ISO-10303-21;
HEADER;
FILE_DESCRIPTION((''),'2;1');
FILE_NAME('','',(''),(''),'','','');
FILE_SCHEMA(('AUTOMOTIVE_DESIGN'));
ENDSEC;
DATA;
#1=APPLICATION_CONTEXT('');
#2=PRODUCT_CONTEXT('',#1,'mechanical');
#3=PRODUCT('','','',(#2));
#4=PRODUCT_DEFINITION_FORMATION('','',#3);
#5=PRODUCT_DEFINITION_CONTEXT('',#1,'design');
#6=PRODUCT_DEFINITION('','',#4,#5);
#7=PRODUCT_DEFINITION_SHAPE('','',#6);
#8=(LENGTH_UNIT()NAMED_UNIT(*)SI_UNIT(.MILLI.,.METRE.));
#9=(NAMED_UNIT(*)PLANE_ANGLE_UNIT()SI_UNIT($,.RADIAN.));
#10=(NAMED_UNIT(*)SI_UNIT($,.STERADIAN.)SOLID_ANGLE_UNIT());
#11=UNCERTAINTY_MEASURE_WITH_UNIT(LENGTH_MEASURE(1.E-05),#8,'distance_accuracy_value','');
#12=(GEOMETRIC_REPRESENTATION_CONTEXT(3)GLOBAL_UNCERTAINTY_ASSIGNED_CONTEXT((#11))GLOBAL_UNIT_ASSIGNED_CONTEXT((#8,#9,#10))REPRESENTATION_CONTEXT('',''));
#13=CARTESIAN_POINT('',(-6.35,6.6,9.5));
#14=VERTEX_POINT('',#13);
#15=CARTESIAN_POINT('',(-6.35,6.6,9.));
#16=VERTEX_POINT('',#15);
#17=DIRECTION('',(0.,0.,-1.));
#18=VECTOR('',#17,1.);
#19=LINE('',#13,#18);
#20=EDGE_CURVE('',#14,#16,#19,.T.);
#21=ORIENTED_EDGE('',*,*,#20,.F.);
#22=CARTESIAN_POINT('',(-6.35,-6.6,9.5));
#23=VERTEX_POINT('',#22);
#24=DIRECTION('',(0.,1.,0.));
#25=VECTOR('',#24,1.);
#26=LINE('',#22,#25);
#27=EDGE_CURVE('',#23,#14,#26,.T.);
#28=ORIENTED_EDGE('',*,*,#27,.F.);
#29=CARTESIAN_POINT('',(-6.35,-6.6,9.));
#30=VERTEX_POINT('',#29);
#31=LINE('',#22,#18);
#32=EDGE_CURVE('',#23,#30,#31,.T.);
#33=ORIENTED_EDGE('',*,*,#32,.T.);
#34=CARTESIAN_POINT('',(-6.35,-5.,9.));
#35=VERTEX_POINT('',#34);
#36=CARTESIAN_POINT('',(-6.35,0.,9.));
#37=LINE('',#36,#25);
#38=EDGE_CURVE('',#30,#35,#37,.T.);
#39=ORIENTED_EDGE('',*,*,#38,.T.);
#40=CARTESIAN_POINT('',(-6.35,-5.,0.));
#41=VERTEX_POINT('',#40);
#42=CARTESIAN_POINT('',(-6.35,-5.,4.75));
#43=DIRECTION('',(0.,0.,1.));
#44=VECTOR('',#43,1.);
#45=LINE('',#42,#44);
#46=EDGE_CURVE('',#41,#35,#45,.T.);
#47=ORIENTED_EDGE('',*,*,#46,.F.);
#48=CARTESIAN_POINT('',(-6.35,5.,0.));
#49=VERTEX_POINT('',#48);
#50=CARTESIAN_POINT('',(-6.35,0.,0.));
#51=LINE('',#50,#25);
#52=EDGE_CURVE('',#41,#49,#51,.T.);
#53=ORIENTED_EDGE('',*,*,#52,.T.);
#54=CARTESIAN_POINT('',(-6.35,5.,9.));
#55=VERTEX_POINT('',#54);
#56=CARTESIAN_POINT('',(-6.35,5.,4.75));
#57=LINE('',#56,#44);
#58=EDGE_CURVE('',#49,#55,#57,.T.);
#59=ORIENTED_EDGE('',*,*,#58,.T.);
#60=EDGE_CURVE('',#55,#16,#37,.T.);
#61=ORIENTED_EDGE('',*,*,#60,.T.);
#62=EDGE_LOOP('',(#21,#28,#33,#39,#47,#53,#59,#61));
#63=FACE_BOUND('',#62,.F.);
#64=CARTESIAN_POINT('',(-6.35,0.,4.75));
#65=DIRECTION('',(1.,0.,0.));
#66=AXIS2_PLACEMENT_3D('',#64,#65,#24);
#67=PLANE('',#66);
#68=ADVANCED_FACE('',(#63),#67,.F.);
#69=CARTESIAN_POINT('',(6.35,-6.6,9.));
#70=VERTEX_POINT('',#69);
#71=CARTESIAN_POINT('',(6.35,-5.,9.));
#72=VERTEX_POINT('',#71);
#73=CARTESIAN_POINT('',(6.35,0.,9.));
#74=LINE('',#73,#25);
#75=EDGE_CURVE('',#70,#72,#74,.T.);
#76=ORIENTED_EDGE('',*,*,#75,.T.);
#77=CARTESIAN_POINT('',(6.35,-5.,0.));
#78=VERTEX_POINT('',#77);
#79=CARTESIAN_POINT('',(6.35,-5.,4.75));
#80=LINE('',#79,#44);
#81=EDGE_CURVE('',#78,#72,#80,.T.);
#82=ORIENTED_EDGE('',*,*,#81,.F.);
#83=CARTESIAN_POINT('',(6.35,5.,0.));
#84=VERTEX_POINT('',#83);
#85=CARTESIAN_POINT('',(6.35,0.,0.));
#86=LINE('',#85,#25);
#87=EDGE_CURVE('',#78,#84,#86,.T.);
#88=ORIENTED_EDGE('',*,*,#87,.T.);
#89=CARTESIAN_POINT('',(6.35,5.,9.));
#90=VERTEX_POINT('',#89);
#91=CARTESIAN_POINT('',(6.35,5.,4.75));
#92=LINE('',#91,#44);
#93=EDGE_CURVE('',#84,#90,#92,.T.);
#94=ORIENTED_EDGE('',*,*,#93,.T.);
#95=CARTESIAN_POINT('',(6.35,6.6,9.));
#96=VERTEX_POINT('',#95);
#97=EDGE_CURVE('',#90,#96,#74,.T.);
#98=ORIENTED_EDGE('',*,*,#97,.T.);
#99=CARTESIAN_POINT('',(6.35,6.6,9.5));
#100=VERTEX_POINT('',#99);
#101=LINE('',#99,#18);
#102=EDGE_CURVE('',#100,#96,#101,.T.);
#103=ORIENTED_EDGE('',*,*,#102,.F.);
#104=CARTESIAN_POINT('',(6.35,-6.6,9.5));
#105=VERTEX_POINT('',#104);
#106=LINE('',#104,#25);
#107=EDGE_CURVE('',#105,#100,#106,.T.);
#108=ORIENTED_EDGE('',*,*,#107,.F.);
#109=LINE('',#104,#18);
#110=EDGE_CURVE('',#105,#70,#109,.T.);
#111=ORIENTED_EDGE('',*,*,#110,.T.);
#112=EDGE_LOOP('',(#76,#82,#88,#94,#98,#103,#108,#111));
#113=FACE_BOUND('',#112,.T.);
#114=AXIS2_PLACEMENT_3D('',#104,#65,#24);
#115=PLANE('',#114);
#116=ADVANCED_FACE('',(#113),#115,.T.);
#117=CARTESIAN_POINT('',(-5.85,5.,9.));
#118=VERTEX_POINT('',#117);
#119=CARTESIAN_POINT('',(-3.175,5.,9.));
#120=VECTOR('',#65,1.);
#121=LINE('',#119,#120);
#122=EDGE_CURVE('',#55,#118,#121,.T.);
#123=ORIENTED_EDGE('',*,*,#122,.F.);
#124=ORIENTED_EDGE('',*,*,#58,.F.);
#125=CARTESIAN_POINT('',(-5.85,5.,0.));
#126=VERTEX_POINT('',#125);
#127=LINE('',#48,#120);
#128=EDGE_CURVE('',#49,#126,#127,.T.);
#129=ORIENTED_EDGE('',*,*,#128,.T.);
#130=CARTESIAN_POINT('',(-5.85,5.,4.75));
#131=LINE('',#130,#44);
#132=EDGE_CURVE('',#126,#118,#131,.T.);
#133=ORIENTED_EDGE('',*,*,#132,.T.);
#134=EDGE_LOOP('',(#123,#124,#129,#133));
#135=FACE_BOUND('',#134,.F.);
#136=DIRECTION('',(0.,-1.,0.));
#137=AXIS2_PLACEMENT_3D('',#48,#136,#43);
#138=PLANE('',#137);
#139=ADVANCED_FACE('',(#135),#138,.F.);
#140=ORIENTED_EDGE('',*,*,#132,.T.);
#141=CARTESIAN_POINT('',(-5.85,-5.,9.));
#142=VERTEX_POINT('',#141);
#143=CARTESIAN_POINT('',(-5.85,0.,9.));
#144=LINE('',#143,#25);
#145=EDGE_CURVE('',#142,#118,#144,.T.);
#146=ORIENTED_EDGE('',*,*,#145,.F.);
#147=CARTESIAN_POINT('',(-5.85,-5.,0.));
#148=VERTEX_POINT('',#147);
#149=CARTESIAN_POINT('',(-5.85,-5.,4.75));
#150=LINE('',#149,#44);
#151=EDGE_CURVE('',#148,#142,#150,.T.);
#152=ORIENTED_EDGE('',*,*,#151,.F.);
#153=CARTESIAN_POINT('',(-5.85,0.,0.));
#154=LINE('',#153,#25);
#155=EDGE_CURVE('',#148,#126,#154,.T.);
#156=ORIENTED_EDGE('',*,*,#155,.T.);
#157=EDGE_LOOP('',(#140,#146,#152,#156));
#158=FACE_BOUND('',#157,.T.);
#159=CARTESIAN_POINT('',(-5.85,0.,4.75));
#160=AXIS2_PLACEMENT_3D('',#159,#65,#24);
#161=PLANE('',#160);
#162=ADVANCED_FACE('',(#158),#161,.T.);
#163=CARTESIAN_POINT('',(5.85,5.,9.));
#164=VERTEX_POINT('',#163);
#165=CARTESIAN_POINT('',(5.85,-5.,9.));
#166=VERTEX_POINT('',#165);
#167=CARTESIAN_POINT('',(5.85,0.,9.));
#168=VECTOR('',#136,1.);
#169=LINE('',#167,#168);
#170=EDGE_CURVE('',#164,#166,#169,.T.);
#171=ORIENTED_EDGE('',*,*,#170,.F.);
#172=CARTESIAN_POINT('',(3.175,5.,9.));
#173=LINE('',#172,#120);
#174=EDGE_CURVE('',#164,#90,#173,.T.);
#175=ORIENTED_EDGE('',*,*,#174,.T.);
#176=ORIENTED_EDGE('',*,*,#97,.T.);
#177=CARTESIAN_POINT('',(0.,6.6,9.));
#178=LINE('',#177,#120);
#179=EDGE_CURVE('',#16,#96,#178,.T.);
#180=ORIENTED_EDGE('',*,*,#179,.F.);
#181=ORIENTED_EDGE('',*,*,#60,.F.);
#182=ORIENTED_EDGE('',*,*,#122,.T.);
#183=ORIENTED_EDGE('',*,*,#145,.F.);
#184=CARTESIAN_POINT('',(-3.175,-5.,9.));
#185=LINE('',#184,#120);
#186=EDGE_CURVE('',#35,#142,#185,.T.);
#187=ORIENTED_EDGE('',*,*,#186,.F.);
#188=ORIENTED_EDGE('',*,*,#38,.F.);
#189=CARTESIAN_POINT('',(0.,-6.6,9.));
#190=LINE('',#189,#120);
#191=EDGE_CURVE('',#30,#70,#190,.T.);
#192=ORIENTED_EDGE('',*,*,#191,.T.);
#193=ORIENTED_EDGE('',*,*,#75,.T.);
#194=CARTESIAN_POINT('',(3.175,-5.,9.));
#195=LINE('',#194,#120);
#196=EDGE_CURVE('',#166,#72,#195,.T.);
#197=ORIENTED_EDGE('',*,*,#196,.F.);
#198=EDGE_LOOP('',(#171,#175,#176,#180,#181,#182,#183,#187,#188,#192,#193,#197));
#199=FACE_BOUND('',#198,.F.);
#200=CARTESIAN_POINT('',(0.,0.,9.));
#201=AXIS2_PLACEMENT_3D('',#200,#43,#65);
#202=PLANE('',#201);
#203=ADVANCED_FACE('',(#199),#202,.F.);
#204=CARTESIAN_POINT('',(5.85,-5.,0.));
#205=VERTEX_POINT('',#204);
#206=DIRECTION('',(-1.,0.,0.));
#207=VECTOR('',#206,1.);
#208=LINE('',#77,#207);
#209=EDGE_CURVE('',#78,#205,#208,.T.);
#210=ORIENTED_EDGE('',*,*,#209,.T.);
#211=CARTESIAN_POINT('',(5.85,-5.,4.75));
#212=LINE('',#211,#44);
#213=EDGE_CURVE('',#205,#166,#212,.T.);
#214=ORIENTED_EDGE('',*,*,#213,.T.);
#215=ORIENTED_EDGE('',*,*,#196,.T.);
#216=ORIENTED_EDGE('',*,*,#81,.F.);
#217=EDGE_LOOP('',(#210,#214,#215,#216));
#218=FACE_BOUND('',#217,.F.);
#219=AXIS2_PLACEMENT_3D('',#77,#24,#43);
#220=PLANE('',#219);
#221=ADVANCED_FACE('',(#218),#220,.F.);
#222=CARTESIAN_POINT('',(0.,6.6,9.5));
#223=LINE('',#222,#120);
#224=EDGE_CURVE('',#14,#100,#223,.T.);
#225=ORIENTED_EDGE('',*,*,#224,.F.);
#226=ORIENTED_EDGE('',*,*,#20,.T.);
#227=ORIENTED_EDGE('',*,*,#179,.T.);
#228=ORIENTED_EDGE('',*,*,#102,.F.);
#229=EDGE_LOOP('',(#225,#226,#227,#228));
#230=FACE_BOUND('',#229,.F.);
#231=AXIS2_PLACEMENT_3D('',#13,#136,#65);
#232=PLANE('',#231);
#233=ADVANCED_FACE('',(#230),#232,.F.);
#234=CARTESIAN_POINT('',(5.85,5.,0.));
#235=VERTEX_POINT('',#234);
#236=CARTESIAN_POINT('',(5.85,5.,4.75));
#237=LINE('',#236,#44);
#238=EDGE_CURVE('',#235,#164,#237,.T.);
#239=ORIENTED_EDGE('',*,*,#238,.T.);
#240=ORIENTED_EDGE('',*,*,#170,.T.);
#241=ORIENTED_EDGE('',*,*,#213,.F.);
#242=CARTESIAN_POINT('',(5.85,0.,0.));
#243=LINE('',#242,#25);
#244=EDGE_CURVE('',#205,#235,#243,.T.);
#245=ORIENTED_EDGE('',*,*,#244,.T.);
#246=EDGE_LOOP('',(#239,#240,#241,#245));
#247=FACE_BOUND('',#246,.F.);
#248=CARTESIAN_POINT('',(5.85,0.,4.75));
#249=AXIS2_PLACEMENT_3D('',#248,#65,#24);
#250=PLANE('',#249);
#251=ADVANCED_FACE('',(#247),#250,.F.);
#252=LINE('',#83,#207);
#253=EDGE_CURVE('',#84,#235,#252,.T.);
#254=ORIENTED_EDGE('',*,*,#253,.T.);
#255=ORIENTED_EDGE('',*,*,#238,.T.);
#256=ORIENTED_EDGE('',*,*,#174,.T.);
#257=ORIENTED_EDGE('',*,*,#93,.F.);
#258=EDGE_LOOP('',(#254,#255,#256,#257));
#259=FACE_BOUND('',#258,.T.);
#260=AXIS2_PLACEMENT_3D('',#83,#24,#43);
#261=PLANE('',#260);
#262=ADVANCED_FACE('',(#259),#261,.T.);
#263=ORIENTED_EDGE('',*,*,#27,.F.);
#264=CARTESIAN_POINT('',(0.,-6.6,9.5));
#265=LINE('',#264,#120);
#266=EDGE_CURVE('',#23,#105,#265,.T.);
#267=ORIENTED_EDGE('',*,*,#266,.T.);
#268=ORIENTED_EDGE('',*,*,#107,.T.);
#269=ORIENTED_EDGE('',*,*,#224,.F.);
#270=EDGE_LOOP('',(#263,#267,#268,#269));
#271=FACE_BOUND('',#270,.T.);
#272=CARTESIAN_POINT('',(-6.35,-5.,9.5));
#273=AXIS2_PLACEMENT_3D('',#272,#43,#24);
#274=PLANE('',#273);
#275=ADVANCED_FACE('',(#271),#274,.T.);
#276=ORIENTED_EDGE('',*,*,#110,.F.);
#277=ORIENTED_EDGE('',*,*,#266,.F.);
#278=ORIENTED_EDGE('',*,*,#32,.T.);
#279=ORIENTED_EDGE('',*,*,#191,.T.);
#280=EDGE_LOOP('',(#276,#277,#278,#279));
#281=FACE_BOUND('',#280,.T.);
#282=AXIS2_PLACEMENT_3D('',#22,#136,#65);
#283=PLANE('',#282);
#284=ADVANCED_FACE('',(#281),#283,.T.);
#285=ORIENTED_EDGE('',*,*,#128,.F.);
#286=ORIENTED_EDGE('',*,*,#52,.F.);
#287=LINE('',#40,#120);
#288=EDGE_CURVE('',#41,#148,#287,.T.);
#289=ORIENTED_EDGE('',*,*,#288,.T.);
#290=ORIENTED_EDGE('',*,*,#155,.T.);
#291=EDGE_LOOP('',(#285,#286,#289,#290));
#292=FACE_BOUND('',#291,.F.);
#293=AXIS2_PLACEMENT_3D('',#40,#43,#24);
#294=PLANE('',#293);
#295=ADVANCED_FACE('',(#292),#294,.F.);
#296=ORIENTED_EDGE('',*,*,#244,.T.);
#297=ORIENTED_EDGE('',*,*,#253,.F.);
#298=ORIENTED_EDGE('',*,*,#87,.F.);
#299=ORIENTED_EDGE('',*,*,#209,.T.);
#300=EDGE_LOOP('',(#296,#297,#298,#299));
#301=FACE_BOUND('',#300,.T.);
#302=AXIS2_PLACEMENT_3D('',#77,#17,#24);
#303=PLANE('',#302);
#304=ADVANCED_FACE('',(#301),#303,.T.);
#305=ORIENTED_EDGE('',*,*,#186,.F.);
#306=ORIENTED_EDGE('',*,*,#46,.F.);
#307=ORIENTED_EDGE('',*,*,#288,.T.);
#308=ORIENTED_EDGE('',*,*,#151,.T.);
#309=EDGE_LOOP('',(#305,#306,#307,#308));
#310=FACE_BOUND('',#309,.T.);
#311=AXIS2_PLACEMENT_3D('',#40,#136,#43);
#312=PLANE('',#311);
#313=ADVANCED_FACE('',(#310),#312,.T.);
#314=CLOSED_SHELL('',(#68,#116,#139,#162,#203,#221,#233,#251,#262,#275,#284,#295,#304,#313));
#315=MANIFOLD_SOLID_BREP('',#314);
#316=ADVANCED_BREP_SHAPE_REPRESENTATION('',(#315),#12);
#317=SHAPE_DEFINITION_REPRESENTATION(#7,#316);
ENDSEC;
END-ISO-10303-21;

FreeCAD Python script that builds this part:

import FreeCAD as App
import Part
import Sketcher
from FreeCAD import Vector
Q = App.Units.Quantity


def add_polygon(sketch, points):
    """Adds a closed chain of lines whose ends are joined by coincident constraints."""
    first, n = sketch.GeometryCount, len(points)
    for a, b in zip(points, points[1:] + points[:1]):
        sketch.addGeometry(Part.LineSegment(App.Vector(*a, 0), App.Vector(*b, 0)), False)
    for i in range(n):
        sketch.addConstraint(Sketcher.Constraint("Coincident", first + i, 2, first + (i + 1) % n, 1))

doc = App.newDocument("Part")
params = doc.addObject("Spreadsheet::Sheet", "Params")
for row, (alias, value) in enumerate([
    ("sketch1_width", "10 mm"),
    ("sketch1_height", "9.5 mm"),
    ("pad1_length", "0.5 mm"),
    ("sketch2_width", "12.7 mm"),
    ("sketch2_height", "13.2 mm"),
    ("pad2_length", "0.5 mm"),
    ("sketch3_width", "10 mm"),
    ("sketch3_height", "9.5 mm"),
    ("pad3_length", "0.5 mm"),
], start=1):
    params.set(f"A{row}", alias)
    params.set(f"B{row}", "=" + value)
    params.setAlias(f"B{row}", alias)

body = doc.addObject("PartDesign::Body", "Body")

# Sketch on YZ plane
sketch1 = body.newObject("Sketcher::SketchObject", "Sketch")
sketch1.AttachmentSupport = (doc.getObject("YZ_Plane"), [""])
sketch1.MapMode = "FlatFace"
sketch1.AttachmentOffset = App.Placement(Vector(0, 0, 6.35), App.Rotation())
add_polygon(sketch1, [(-5, 10), (-5, 0), (5, 0), (5, 10)])  # lines 0-3
sketch1.addConstraint(Sketcher.Constraint("Vertical", 0))
sketch1.addConstraint(Sketcher.Constraint("Horizontal", 1))
sketch1.addConstraint(Sketcher.Constraint("Vertical", 2))
sketch1.addConstraint(Sketcher.Constraint("Horizontal", 3))
sketch1.addConstraint(Sketcher.Constraint("Symmetric", 0, 2, 1, 2, -1, 1))
sketch1.addConstraint(Sketcher.Constraint("DistanceX", 1, 1, 1, 2, Q("10 mm")))
sketch1.addConstraint(Sketcher.Constraint("DistanceY", 0, 2, 0, 1, Q("9.5 mm")))
sketch1.setExpression("Constraints[9]", "Params.sketch1_width")
sketch1.setExpression("Constraints[10]", "Params.sketch1_height")
pad1 = body.newObject("PartDesign::Pad", "Pad")
pad1.Profile = sketch1
pad1.setExpression("Length", "Params.pad1_length")
pad1.Reversed = True

# Sketch on XY plane
sketch2 = body.newObject("Sketcher::SketchObject", "Sketch001")
sketch2.AttachmentSupport = (doc.getObject("XY_Plane"), [""])
sketch2.MapMode = "FlatFace"
sketch2.AttachmentOffset = App.Placement(Vector(0, 0, 9.5), App.Rotation())
add_polygon(sketch2, [(-6, 7), (-6, -7), (6, -7), (6, 7)])  # lines 0-3
sketch2.addConstraint(Sketcher.Constraint("Vertical", 0))
sketch2.addConstraint(Sketcher.Constraint("Horizontal", 1))
sketch2.addConstraint(Sketcher.Constraint("Vertical", 2))
sketch2.addConstraint(Sketcher.Constraint("Horizontal", 3))
sketch2.addConstraint(Sketcher.Constraint("Symmetric", 0, 2, 2, 2, -1, 1))
sketch2.addConstraint(Sketcher.Constraint("DistanceX", 1, 1, 1, 2, Q("12.7 mm")))
sketch2.addConstraint(Sketcher.Constraint("DistanceY", 0, 2, 0, 1, Q("13.2 mm")))
sketch2.setExpression("Constraints[9]", "Params.sketch2_width")
sketch2.setExpression("Constraints[10]", "Params.sketch2_height")
pad2 = body.newObject("PartDesign::Pad", "Pad001")
pad2.Profile = sketch2
pad2.setExpression("Length", "Params.pad2_length")
pad2.Reversed = True

# Sketch on YZ plane
sketch3 = body.newObject("Sketcher::SketchObject", "Sketch002")
sketch3.AttachmentSupport = (doc.getObject("YZ_Plane"), [""])
sketch3.MapMode = "FlatFace"
sketch3.AttachmentOffset = App.Placement(Vector(0, 0, -6.35), App.Rotation())
add_polygon(sketch3, [(-5, 10), (-5, 0), (5, 0), (5, 10)])  # lines 0-3
sketch3.addConstraint(Sketcher.Constraint("Vertical", 0))
sketch3.addConstraint(Sketcher.Constraint("Horizontal", 1))
sketch3.addConstraint(Sketcher.Constraint("Vertical", 2))
sketch3.addConstraint(Sketcher.Constraint("Horizontal", 3))
sketch3.addConstraint(Sketcher.Constraint("Symmetric", 0, 2, 1, 2, -1, 1))
sketch3.addConstraint(Sketcher.Constraint("DistanceX", 1, 1, 1, 2, Q("10 mm")))
sketch3.addConstraint(Sketcher.Constraint("DistanceY", 0, 2, 0, 1, Q("9.5 mm")))
sketch3.setExpression("Constraints[9]", "Params.sketch3_width")
sketch3.setExpression("Constraints[10]", "Params.sketch3_height")
pad3 = body.newObject("PartDesign::Pad", "Pad002")
pad3.Profile = sketch3
pad3.setExpression("Length", "Params.pad3_length")

doc.recompute()
